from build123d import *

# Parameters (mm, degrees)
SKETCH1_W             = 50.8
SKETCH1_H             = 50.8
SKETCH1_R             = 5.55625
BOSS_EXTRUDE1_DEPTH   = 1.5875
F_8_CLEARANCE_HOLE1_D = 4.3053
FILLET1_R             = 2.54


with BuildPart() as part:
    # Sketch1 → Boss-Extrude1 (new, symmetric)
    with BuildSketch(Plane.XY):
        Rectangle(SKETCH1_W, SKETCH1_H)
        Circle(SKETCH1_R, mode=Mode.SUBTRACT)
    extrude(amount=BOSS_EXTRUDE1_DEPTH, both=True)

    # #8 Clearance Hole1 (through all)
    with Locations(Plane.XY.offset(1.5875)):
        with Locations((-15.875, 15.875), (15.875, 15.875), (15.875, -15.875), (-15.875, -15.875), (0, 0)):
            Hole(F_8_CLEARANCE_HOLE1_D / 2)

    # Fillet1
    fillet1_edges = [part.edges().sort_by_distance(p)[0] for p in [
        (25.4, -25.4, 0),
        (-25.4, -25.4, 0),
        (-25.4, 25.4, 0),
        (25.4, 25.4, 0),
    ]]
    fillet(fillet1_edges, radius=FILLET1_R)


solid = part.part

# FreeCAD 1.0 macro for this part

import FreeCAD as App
import Part
import Sketcher

V = App.Vector
Q = App.Units.Quantity


def edges_at(feature, points):
    """Names of the edges that pass closest to the given points."""
    edges = feature.Shape.Edges
    near = lambda p: min(range(len(edges)), key=lambda i: edges[i].distToShape(Part.Vertex(*p))[0])
    return sorted({f"Edge{near(p) + 1}" for p in points})

doc = App.newDocument("Part")
body = doc.addObject("PartDesign::Body", "Body")

# Sketch on XY plane
sketch1 = body.newObject("Sketcher::SketchObject", "Sketch")
sketch1.AttachmentSupport = (doc.getObject("XY_Plane"), [""])
sketch1.MapMode = "FlatFace"
sketch1.addGeometry(Part.LineSegment(V(-25, 25, 0), V(-25, -25, 0)), False)
sketch1.addGeometry(Part.LineSegment(V(-25, -25, 0), V(25, -25, 0)), False)
sketch1.addGeometry(Part.LineSegment(V(25, -25, 0), V(25, 25, 0)), False)
sketch1.addGeometry(Part.LineSegment(V(25, 25, 0), V(-25, 25, 0)), False)
sketch1.addGeometry(Part.Circle(V(0, 0, 0), V(0, 0, 1), 6), False)
sketch1.addConstraint(Sketcher.Constraint("Coincident", 0, 2, 1, 1))
sketch1.addConstraint(Sketcher.Constraint("Coincident", 1, 2, 2, 1))
sketch1.addConstraint(Sketcher.Constraint("Coincident", 2, 2, 3, 1))
sketch1.addConstraint(Sketcher.Constraint("Coincident", 3, 2, 0, 1))
sketch1.addConstraint(Sketcher.Constraint("Vertical", 0))
sketch1.addConstraint(Sketcher.Constraint("Horizontal", 1))
sketch1.addConstraint(Sketcher.Constraint("Vertical", 2))
sketch1.addConstraint(Sketcher.Constraint("Horizontal", 3))
sketch1.addConstraint(Sketcher.Constraint("Coincident", 4, 3, -1, 1))
sketch1.addConstraint(Sketcher.Constraint("Symmetric", 0, 2, 2, 2, -1, 1))
sketch1.addConstraint(Sketcher.Constraint("Equal", 3, 0))
sketch1.addConstraint(Sketcher.Constraint("DistanceX", 1, 1, 1, 2, Q("2 in")))
sketch1.addConstraint(Sketcher.Constraint("Diameter", 4, Q("0.4375 in")))
pad1 = body.newObject("PartDesign::Pad", "Pad")
pad1.Profile = sketch1
pad1.Length = Q("0.125 in")
pad1.Midplane = True

# Sketch on XY plane
sketch2 = body.newObject("Sketcher::SketchObject", "Sketch001")
sketch2.AttachmentSupport = (doc.getObject("XY_Plane"), [""])
sketch2.MapMode = "FlatFace"
sketch2.AttachmentOffset = App.Placement(V(0, 0, 0.0625 * 25.4), App.Rotation())
sketch2.addGeometry(Part.Circle(V(-15.9, 15.9, 0), V(0, 0, 1), 2.2), False)
sketch2.addGeometry(Part.Circle(V(15.9, 15.9, 0), V(0, 0, 1), 2.2), False)
sketch2.addGeometry(Part.Circle(V(15.9, -15.9, 0), V(0, 0, 1), 2.2), False)
sketch2.addGeometry(Part.Circle(V(-15.9, -15.9, 0), V(0, 0, 1), 2.2), False)
sketch2.addGeometry(Part.Circle(V(0, 0, 0), V(0, 0, 1), 2.2), False)
sketch2.addConstraint(Sketcher.Constraint("Coincident", 4, 3, -1, 1))
sketch2.addConstraint(Sketcher.Constraint("Equal", 0, 1))
sketch2.addConstraint(Sketcher.Constraint("Equal", 1, 2))
sketch2.addConstraint(Sketcher.Constraint("Equal", 2, 3))
sketch2.addConstraint(Sketcher.Constraint("Equal", 3, 4))
sketch2.addConstraint(Sketcher.Constraint("Symmetric", 0, 3, 2, 3, -1, 1))
sketch2.addConstraint(Sketcher.Constraint("Symmetric", 1, 3, 3, 3, -1, 1))
sketch2.addConstraint(Sketcher.Constraint("Symmetric", 0, 3, 1, 3, -2))
sketch2.addConstraint(Sketcher.Constraint("Diameter", 0, Q("0.1695 in")))
sketch2.addConstraint(Sketcher.Constraint("DistanceX", 0, 3, 1, 3, Q("1.25 in")))
sketch2.addConstraint(Sketcher.Constraint("DistanceY", 2, 3, 1, 3, Q("1.25 in")))
doc.recompute()
hole = body.newObject("PartDesign::Hole", "Hole")
hole.Profile = sketch2
hole.ThreadType = "None"
hole.Diameter = Q("0.1695 in")
hole.DepthType = "ThroughAll"
doc.recompute()

fillet = body.newObject("PartDesign::Fillet", "Fillet")
fillet.Base = (hole, edges_at(hole, [
    (25.4, -25.4, 0),
    (-25.4, -25.4, 0),
    (-25.4, 25.4, 0),
    (25.4, 25.4, 0),
]))
fillet.Radius = Q("0.1 in")

doc.recompute()
